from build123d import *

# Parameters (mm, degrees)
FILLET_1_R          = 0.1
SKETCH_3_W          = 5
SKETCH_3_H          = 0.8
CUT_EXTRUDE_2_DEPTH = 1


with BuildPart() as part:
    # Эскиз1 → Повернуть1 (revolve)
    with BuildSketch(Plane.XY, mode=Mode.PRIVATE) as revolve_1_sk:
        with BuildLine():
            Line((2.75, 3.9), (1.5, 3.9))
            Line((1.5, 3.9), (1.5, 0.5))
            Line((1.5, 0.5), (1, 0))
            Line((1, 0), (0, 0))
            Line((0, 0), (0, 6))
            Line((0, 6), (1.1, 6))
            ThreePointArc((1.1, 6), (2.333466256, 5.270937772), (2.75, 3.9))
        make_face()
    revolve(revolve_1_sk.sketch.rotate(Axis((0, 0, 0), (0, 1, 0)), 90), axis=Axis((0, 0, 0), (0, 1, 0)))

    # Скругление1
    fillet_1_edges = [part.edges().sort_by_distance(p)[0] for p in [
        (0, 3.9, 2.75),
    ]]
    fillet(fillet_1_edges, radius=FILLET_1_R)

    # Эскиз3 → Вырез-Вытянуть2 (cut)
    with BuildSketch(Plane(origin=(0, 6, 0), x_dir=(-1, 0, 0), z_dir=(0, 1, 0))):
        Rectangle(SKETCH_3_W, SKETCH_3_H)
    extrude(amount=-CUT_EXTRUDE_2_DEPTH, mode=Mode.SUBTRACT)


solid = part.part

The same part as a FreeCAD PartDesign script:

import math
import FreeCAD as App
import Part
import Sketcher
Q = App.Units.Quantity


def edges_at(feature, points):
    """Names of the edges that pass closest to the given points."""
    edges = feature.Shape.Edges
    near = lambda p: min(range(len(edges)), key=lambda i: edges[i].distToShape(Part.Vertex(*p))[0])
    return sorted({f"Edge{near(p) + 1}" for p in points})


def add_polygon(sketch, points):
    """Adds a closed chain of lines whose ends are joined by coincident constraints."""
    first, n = sketch.GeometryCount, len(points)
    for a, b in zip(points, points[1:] + points[:1]):
        sketch.addGeometry(Part.LineSegment(App.Vector(*a, 0), App.Vector(*b, 0)), False)
    for i in range(n):
        sketch.addConstraint(Sketcher.Constraint("Coincident", first + i, 2, first + (i + 1) % n, 1))

doc = App.newDocument("Part")
body = doc.addObject("PartDesign::Body", "Body")

sketch1 = body.newObject("Sketcher::SketchObject", "Sketch")
sketch1.AttachmentSupport = (doc.getObject("XY_Plane"), [""])
sketch1.MapMode = "FlatFace"
sketch1.addGeometry([
    Part.LineSegment(App.Vector(1.5, 3.9, 0), App.Vector(2.75, 3.9, 0)),
    Part.ArcOfCircle(Part.Circle(App.Vector(0.779672, 4.0501, 0), App.Vector(0, 0, 1), 1.976037), math.radians(-4.356385), math.radians(80.670838)),
    Part.LineSegment(App.Vector(1.1, 6, 0), App.Vector(0, 6, 0)),
    Part.LineSegment(App.Vector(0, 6, 0), App.Vector(0, 0, 0)),
    Part.LineSegment(App.Vector(0, 0, 0), App.Vector(1, 0, 0)),
    Part.LineSegment(App.Vector(1, 0, 0), App.Vector(1.5, 0.5, 0)),
    Part.LineSegment(App.Vector(1.5, 0.5, 0), App.Vector(1.5, 3.9, 0)),
], False)
sketch1.addConstraint([
    Sketcher.Constraint("Coincident", 0, 2, 1, 1),
    Sketcher.Constraint("Coincident", 1, 2, 2, 1),
    Sketcher.Constraint("Coincident", 2, 2, 3, 1),
    Sketcher.Constraint("Coincident", 3, 2, 4, 1),
    Sketcher.Constraint("Coincident", 4, 2, 5, 1),
    Sketcher.Constraint("Coincident", 5, 2, 6, 1),
    Sketcher.Constraint("Coincident", 6, 2, 0, 1),
    Sketcher.Constraint("Horizontal", 0),
    Sketcher.Constraint("Horizontal", 2),
    Sketcher.Constraint("Vertical", 3),
    Sketcher.Constraint("Horizontal", 4),
    Sketcher.Constraint("Vertical", 6),
    Sketcher.Constraint("Coincident", 3, 2, -1, 1),
    Sketcher.Constraint("DistanceX", 4, 1, 4, 2, 1.0),
    Sketcher.Constraint("DistanceY", 3, 2, 3, 1, 6.0),
    Sketcher.Constraint("Angle", 5, Q("45 deg")),
    Sketcher.Constraint("DistanceX", 2, 2, 2, 1, 1.1),
    Sketcher.Constraint("DistanceY", 6, 1, 6, 2, 3.4),
    Sketcher.Constraint("DistanceX", 0, 1, 0, 2, 1.25),
    Sketcher.Constraint("DistanceY", -1, 1, 0, 2, 3.9),
    Sketcher.Constraint("Radius", 1, 1.976037),
])
revolution = body.newObject("PartDesign::Revolution", "Revolution")
revolution.Profile = sketch1
revolution.ReferenceAxis = (sketch1, ["V_Axis"])
revolution.Angle = 360
doc.recompute()

fillet = body.newObject("PartDesign::Fillet", "Fillet")
fillet.Base = (revolution, edges_at(revolution, [(0, 3.9, 2.75)]))
fillet.Radius = 0.1

sketch2 = body.newObject("Sketcher::SketchObject", "Sketch001")
sketch2.AttachmentSupport = (doc.getObject("XZ_Plane"), [""])
sketch2.MapMode = "FlatFace"
sketch2.AttachmentOffset = App.Placement(App.Vector(0, 0, -6), App.Rotation())
add_polygon(sketch2, [(2.5, 0.4), (2.5, -0.4), (-2.5, -0.4), (-2.5, 0.4)])
sketch2.addConstraint([
    Sketcher.Constraint("Vertical", 0),
    Sketcher.Constraint("Horizontal", 1),
    Sketcher.Constraint("Vertical", 2),
    Sketcher.Constraint("Horizontal", 3),
    Sketcher.Constraint("Symmetric", 0, 2, 2, 2, -1, 1),
    Sketcher.Constraint("DistanceX", 1, 2, 1, 1, 5.0),
    Sketcher.Constraint("DistanceY", 0, 2, 0, 1, 0.8),
])
pocket1 = body.newObject("PartDesign::Pocket", "Pocket")
pocket1.Profile = sketch2
pocket1.Length = 1
pocket1.Reversed = True

doc.recompute()
